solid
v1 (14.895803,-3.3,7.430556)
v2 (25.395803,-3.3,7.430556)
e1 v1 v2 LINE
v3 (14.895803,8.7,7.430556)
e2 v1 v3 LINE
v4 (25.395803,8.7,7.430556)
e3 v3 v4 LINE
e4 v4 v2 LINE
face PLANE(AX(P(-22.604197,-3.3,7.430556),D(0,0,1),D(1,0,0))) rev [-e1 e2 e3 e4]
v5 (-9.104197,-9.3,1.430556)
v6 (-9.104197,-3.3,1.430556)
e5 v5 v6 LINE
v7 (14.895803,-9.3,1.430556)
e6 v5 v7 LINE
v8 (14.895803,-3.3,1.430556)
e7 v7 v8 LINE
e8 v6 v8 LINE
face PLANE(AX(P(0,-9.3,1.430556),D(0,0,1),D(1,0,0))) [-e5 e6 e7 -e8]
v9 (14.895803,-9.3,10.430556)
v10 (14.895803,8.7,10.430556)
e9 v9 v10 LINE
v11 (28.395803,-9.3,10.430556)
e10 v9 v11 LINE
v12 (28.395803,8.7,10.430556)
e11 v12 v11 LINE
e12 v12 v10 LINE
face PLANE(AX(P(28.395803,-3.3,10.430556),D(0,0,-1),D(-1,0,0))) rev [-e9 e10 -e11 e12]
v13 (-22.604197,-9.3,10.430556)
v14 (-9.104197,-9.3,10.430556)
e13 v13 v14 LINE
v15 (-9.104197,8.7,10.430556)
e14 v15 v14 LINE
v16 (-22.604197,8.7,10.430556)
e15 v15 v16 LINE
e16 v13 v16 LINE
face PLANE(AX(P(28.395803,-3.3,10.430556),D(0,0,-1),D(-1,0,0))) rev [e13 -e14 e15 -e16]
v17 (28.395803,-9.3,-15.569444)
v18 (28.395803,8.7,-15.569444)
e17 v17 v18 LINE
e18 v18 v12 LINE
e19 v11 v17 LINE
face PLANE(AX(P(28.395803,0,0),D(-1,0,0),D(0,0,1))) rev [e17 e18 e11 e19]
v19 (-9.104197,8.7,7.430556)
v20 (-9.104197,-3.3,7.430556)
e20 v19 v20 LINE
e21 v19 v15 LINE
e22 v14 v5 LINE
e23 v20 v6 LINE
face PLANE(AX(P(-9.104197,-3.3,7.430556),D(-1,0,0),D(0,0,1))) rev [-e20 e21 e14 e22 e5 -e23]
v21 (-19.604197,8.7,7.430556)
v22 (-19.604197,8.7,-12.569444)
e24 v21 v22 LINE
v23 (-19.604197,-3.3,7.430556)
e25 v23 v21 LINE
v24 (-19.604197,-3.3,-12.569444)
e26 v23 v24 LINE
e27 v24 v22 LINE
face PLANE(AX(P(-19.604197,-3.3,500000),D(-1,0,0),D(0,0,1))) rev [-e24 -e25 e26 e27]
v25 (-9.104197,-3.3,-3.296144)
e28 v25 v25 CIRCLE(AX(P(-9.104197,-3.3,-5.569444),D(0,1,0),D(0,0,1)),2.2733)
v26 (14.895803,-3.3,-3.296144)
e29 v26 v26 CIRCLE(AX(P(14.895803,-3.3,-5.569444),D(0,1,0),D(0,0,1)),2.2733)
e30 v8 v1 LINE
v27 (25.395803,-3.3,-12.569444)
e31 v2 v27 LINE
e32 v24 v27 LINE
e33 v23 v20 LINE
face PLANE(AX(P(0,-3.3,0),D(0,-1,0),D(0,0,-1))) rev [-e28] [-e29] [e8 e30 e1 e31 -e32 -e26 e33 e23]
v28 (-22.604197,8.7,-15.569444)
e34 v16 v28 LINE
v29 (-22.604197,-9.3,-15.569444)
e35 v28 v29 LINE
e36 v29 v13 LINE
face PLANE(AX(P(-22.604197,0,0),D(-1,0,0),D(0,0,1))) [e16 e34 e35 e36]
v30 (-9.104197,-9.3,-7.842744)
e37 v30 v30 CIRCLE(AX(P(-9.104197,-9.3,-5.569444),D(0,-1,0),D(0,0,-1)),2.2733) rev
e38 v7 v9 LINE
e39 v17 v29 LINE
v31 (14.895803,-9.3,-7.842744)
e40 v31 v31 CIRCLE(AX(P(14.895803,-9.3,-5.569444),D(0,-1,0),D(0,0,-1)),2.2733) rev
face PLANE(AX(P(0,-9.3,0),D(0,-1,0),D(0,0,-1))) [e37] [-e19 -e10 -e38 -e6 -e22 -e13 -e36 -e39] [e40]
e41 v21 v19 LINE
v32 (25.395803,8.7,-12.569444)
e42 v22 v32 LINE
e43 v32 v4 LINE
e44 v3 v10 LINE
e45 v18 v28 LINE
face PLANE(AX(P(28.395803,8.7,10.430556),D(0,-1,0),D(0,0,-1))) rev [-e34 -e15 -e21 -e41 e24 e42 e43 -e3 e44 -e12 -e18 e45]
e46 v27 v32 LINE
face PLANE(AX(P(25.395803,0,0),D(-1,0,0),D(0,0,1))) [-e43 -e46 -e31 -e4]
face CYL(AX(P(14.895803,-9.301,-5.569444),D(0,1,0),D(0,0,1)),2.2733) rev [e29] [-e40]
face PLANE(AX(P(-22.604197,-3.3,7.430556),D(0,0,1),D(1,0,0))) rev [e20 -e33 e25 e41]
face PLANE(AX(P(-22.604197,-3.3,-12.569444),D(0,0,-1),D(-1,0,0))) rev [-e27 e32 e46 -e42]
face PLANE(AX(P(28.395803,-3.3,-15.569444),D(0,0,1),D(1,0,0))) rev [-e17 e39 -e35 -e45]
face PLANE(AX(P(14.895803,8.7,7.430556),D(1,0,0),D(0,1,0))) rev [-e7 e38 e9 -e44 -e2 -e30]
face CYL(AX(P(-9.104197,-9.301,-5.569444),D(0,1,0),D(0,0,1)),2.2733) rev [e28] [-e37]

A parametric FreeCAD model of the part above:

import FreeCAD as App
import Part
import Sketcher
from FreeCAD import Vector

doc = App.newDocument("Part")
params = doc.addObject("Spreadsheet::Sheet", "Params")
for row, (alias, value) in enumerate([
    ("sketch1_width", "12 mm"),
    ("sketch1_height", "26 mm"),
    ("pad1_length", "3 mm"),
    ("sketch2_width", "12 mm"),
    ("sketch2_height", "3 mm"),
    ("pad2_length", "48 mm"),
    ("sketch3_width", "3 mm"),
    ("sketch3_height", "12 mm"),
    ("sketch4_width", "24 mm"),
    ("sketch4_height", "12 mm"),
    ("pocket1_length", "3 mm"),
    ("sketch5_width", "51 mm"),
    ("sketch5_width2", "24 mm"),
    ("sketch5_height", "26 mm"),
    ("sketch5_height2", "9 mm"),
    ("pad4_length", "6 mm"),
], start=1):
    params.set(f"A{row}", alias)
    params.set(f"B{row}", "=" + value)
    params.setAlias(f"B{row}", alias)

body = doc.addObject("PartDesign::Body", "Body")

# Sketch on YZ plane
sketch1 = doc.addObject("Sketcher::SketchObject", "Sketch")
body.addObject(sketch1)
sketch1.AttachmentSupport = (doc.YZ_Plane, [""])
sketch1.MapMode = "FlatFace"
sketch1.AttachmentOffset = App.Placement(Vector(0, 0, 25.395803), App.Rotation())
sketch1.addGeometry(Part.LineSegment(Vector(-3.3, -15.569444, 0), Vector(8.7, -15.569444, 0)), False)
sketch1.addGeometry(Part.LineSegment(Vector(8.7, -15.569444, 0), Vector(8.7, 10.430556, 0)), False)
sketch1.addGeometry(Part.LineSegment(Vector(8.7, 10.430556, 0), Vector(-3.3, 10.430556, 0)), False)
sketch1.addGeometry(Part.LineSegment(Vector(-3.3, 10.430556, 0), Vector(-3.3, -15.569444, 0)), False)
sketch1.addConstraint(Sketcher.Constraint("Coincident", 0, 2, 1, 1))
sketch1.addConstraint(Sketcher.Constraint("Coincident", 1, 2, 2, 1))
sketch1.addConstraint(Sketcher.Constraint("Coincident", 2, 2, 3, 1))
sketch1.addConstraint(Sketcher.Constraint("Coincident", 3, 2, 0, 1))
sketch1.addConstraint(Sketcher.Constraint("Horizontal", 0))
sketch1.addConstraint(Sketcher.Constraint("Vertical", 1))
sketch1.addConstraint(Sketcher.Constraint("Horizontal", 2))
sketch1.addConstraint(Sketcher.Constraint("Vertical", 3))
sketch1.addConstraint(Sketcher.Constraint("DistanceX", 0, 1, 0, 2, 12.0))
sketch1.addConstraint(Sketcher.Constraint("DistanceY", 1, 1, 1, 2, 26.0))
sketch1.addConstraint(Sketcher.Constraint("DistanceX", -1, 1, 0, 2, 8.7))
sketch1.addConstraint(Sketcher.Constraint("DistanceY", 0, 2, -1, 1, 15.569444))
sketch1.setExpression("Constraints[8]", "Params.sketch1_width")
sketch1.setExpression("Constraints[9]", "Params.sketch1_height")
pad1 = doc.addObject("PartDesign::Pad", "Pad")
body.addObject(pad1)
pad1.Profile = sketch1
pad1.setExpression("Length", "Params.pad1_length")

# Sketch on YZ plane
sketch2 = doc.addObject("Sketcher::SketchObject", "Sketch001")
body.addObject(sketch2)
sketch2.AttachmentSupport = (doc.YZ_Plane, [""])
sketch2.MapMode = "FlatFace"
sketch2.AttachmentOffset = App.Placement(Vector(0, 0, 25.395803), App.Rotation())
sketch2.addGeometry(Part.LineSegment(Vector(8.7, -15.569444, 0), Vector(-3.3, -15.569444, 0)), False)
sketch2.addGeometry(Part.LineSegment(Vector(-3.3, -15.569444, 0), Vector(-3.3, -12.569444, 0)), False)
sketch2.addGeometry(Part.LineSegment(Vector(-3.3, -12.569444, 0), Vector(8.7, -12.569444, 0)), False)
sketch2.addGeometry(Part.LineSegment(Vector(8.7, -12.569444, 0), Vector(8.7, -15.569444, 0)), False)
sketch2.addGeometry(Part.LineSegment(Vector(8.7, 7.430556, 0), Vector(-3.3, 7.430556, 0)), False)
sketch2.addGeometry(Part.LineSegment(Vector(-3.3, 7.430556, 0), Vector(-3.3, 10.430556, 0)), False)
sketch2.addGeometry(Part.LineSegment(Vector(-3.3, 10.430556, 0), Vector(8.7, 10.430556, 0)), False)
sketch2.addGeometry(Part.LineSegment(Vector(8.7, 10.430556, 0), Vector(8.7, 7.430556, 0)), False)
sketch2.addConstraint(Sketcher.Constraint("Coincident", 0, 2, 1, 1))
sketch2.addConstraint(Sketcher.Constraint("Coincident", 1, 2, 2, 1))
sketch2.addConstraint(Sketcher.Constraint("Coincident", 2, 2, 3, 1))
sketch2.addConstraint(Sketcher.Constraint("Coincident", 3, 2, 0, 1))
sketch2.addConstraint(Sketcher.Constraint("Coincident", 4, 2, 5, 1))
sketch2.addConstraint(Sketcher.Constraint("Coincident", 5, 2, 6, 1))
sketch2.addConstraint(Sketcher.Constraint("Coincident", 6, 2, 7, 1))
sketch2.addConstraint(Sketcher.Constraint("Coincident", 7, 2, 4, 1))
sketch2.addConstraint(Sketcher.Constraint("Horizontal", 0))
sketch2.addConstraint(Sketcher.Constraint("Vertical", 1))
sketch2.addConstraint(Sketcher.Constraint("Horizontal", 2))
sketch2.addConstraint(Sketcher.Constraint("Vertical", 3))
sketch2.addConstraint(Sketcher.Constraint("Horizontal", 4))
sketch2.addConstraint(Sketcher.Constraint("Vertical", 5))
sketch2.addConstraint(Sketcher.Constraint("Horizontal", 6))
sketch2.addConstraint(Sketcher.Constraint("Vertical", 7))
sketch2.addConstraint(Sketcher.Constraint("Vertical", 1, 2, 4, 2))
sketch2.addConstraint(Sketcher.Constraint("Vertical", 3, 2, 6, 2))
sketch2.addConstraint(Sketcher.Constraint("Equal", 3, 5))
sketch2.addConstraint(Sketcher.Constraint("DistanceX", 0, 2, 0, 1, 12.0))
sketch2.addConstraint(Sketcher.Constraint("DistanceY", 1, 1, 1, 2, 3.0))
sketch2.addConstraint(Sketcher.Constraint("DistanceY", 1, 2, 4, 2, 20.0))
sketch2.addConstraint(Sketcher.Constraint("DistanceX", 0, 2, -1, 1, 3.3))
sketch2.addConstraint(Sketcher.Constraint("DistanceY", 0, 2, -1, 1, 15.569444))
sketch2.setExpression("Constraints[19]", "Params.sketch2_width")
sketch2.setExpression("Constraints[20]", "Params.sketch2_height")
pad2 = doc.addObject("PartDesign::Pad", "Pad001")
body.addObject(pad2)
pad2.Profile = sketch2
pad2.setExpression("Length", "Params.pad2_length")
pad2.Reversed = True

# Sketch on XY plane
sketch3 = doc.addObject("Sketcher::SketchObject", "Sketch002")
body.addObject(sketch3)
sketch3.AttachmentSupport = (doc.XY_Plane, [""])
sketch3.MapMode = "FlatFace"
sketch3.AttachmentOffset = App.Placement(Vector(0, 0, -12.569444), App.Rotation())
sketch3.addGeometry(Part.LineSegment(Vector(-22.604197, 8.7, 0), Vector(-22.604197, -3.3, 0)), False)
sketch3.addGeometry(Part.LineSegment(Vector(-22.604197, -3.3, 0), Vector(-19.604197, -3.3, 0)), False)
sketch3.addGeometry(Part.LineSegment(Vector(-19.604197, -3.3, 0), Vector(-19.604197, 8.7, 0)), False)
sketch3.addGeometry(Part.LineSegment(Vector(-19.604197, 8.7, 0), Vector(-22.604197, 8.7, 0)), False)
sketch3.addConstraint(Sketcher.Constraint("Coincident", 0, 2, 1, 1))
sketch3.addConstraint(Sketcher.Constraint("Coincident", 1, 2, 2, 1))
sketch3.addConstraint(Sketcher.Constraint("Coincident", 2, 2, 3, 1))
sketch3.addConstraint(Sketcher.Constraint("Coincident", 3, 2, 0, 1))
sketch3.addConstraint(Sketcher.Constraint("Vertical", 0))
sketch3.addConstraint(Sketcher.Constraint("Horizontal", 1))
sketch3.addConstraint(Sketcher.Constraint("Vertical", 2))
sketch3.addConstraint(Sketcher.Constraint("Horizontal", 3))
sketch3.addConstraint(Sketcher.Constraint("DistanceX", 1, 1, 1, 2, 3.0))
sketch3.addConstraint(Sketcher.Constraint("DistanceY", 0, 2, 0, 1, 12.0))
sketch3.addConstraint(Sketcher.Constraint("DistanceY", 0, 2, -1, 1, 3.3))
sketch3.addConstraint(Sketcher.Constraint("DistanceX", 0, 2, -1, 1, 22.604197))
sketch3.setExpression("Constraints[8]", "Params.sketch3_width")
sketch3.setExpression("Constraints[9]", "Params.sketch3_height")
pad3 = doc.addObject("PartDesign::Pad", "Pad002")
body.addObject(pad3)
pad3.Profile = sketch3
pad3.Type = "UpToFirst"

# Sketch on XY plane
sketch4 = doc.addObject("Sketcher::SketchObject", "Sketch003")
body.addObject(sketch4)
sketch4.AttachmentSupport = (doc.XY_Plane, [""])
sketch4.MapMode = "FlatFace"
sketch4.AttachmentOffset = App.Placement(Vector(0, 0, 10.430556), App.Rotation())
sketch4.addGeometry(Part.LineSegment(Vector(14.895803, 8.7, 0), Vector(-9.104197, 8.7, 0)), False)
sketch4.addGeometry(Part.LineSegment(Vector(-9.104197, 8.7, 0), Vector(-9.104197, -3.3, 0)), False)
sketch4.addGeometry(Part.LineSegment(Vector(-9.104197, -3.3, 0), Vector(14.895803, -3.3, 0)), False)
sketch4.addGeometry(Part.LineSegment(Vector(14.895803, -3.3, 0), Vector(14.895803, 8.7, 0)), False)
sketch4.addConstraint(Sketcher.Constraint("Coincident", 0, 2, 1, 1))
sketch4.addConstraint(Sketcher.Constraint("Coincident", 1, 2, 2, 1))
sketch4.addConstraint(Sketcher.Constraint("Coincident", 2, 2, 3, 1))
sketch4.addConstraint(Sketcher.Constraint("Coincident", 3, 2, 0, 1))
sketch4.addConstraint(Sketcher.Constraint("Horizontal", 0))
sketch4.addConstraint(Sketcher.Constraint("Vertical", 1))
sketch4.addConstraint(Sketcher.Constraint("Horizontal", 2))
sketch4.addConstraint(Sketcher.Constraint("Vertical", 3))
sketch4.addConstraint(Sketcher.Constraint("DistanceX", 0, 2, 0, 1, 24.0))
sketch4.addConstraint(Sketcher.Constraint("DistanceY", 1, 2, 1, 1, 12.0))
sketch4.addConstraint(Sketcher.Constraint("DistanceY", -1, 1, 0, 2, 8.7))
sketch4.addConstraint(Sketcher.Constraint("DistanceX", 0, 2, -1, 1, 9.104197))
sketch4.setExpression("Constraints[8]", "Params.sketch4_width")
sketch4.setExpression("Constraints[9]", "Params.sketch4_height")
pocket1 = doc.addObject("PartDesign::Pocket", "Pocket")
body.addObject(pocket1)
pocket1.Profile = sketch4
pocket1.setExpression("Length", "Params.pocket1_length")

# Sketch on XZ plane
sketch5 = doc.addObject("Sketcher::SketchObject", "Sketch004")
body.addObject(sketch5)
sketch5.AttachmentSupport = (doc.XZ_Plane, [""])
sketch5.MapMode = "FlatFace"
sketch5.AttachmentOffset = App.Placement(Vector(0, 0, 3.3), App.Rotation())
sketch5.addGeometry(Part.LineSegment(Vector(-22.604197, 10.430556, 0), Vector(-22.604197, -15.569444, 0)), False)
sketch5.addGeometry(Part.LineSegment(Vector(-22.604197, -15.569444, 0), Vector(28.395803, -15.569444, 0)), False)
sketch5.addGeometry(Part.LineSegment(Vector(28.395803, -15.569444, 0), Vector(28.395803, 10.430556, 0)), False)
sketch5.addGeometry(Part.LineSegment(Vector(28.395803, 10.430556, 0), Vector(14.895803, 10.430556, 0)), False)
sketch5.addGeometry(Part.LineSegment(Vector(14.895803, 10.430556, 0), Vector(14.895803, 1.430556, 0)), False)
sketch5.addGeometry(Part.LineSegment(Vector(14.895803, 1.430556, 0), Vector(-9.104197, 1.430556, 0)), False)
sketch5.addGeometry(Part.LineSegment(Vector(-9.104197, 1.430556, 0), Vector(-9.104197, 10.430556, 0)), False)
sketch5.addGeometry(Part.LineSegment(Vector(-9.104197, 10.430556, 0), Vector(-22.604197, 10.430556, 0)), False)
sketch5.addConstraint(Sketcher.Constraint("Coincident", 0, 2, 1, 1))
sketch5.addConstraint(Sketcher.Constraint("Coincident", 1, 2, 2, 1))
sketch5.addConstraint(Sketcher.Constraint("Coincident", 2, 2, 3, 1))
sketch5.addConstraint(Sketcher.Constraint("Coincident", 3, 2, 4, 1))
sketch5.addConstraint(Sketcher.Constraint("Coincident", 4, 2, 5, 1))
sketch5.addConstraint(Sketcher.Constraint("Coincident", 5, 2, 6, 1))
sketch5.addConstraint(Sketcher.Constraint("Coincident", 6, 2, 7, 1))
sketch5.addConstraint(Sketcher.Constraint("Coincident", 7, 2, 0, 1))
sketch5.addConstraint(Sketcher.Constraint("Vertical", 0))
sketch5.addConstraint(Sketcher.Constraint("Horizontal", 1))
sketch5.addConstraint(Sketcher.Constraint("Vertical", 2))
sketch5.addConstraint(Sketcher.Constraint("Horizontal", 3))
sketch5.addConstraint(Sketcher.Constraint("Vertical", 4))
sketch5.addConstraint(Sketcher.Constraint("Horizontal", 5))
sketch5.addConstraint(Sketcher.Constraint("Vertical", 6))
sketch5.addConstraint(Sketcher.Constraint("Horizontal", 7))
sketch5.addConstraint(Sketcher.Constraint("Horizontal", 3, 2, 6, 2))
sketch5.addConstraint(Sketcher.Constraint("Equal", 3, 7))
sketch5.addConstraint(Sketcher.Constraint("DistanceX", 1, 1, 1, 2, 51.0))
sketch5.addConstraint(Sketcher.Constraint("DistanceX", 5, 2, 5, 1, 24.0))
sketch5.addConstraint(Sketcher.Constraint("DistanceY", 0, 2, 0, 1, 26.0))
sketch5.addConstraint(Sketcher.Constraint("DistanceY", 4, 2, 4, 1, 9.0))
sketch5.addConstraint(Sketcher.Constraint("DistanceX", 0, 2, -1, 1, 22.604197))
sketch5.addConstraint(Sketcher.Constraint("DistanceY", 0, 2, -1, 1, 15.569444))
sketch5.setExpression("Constraints[18]", "Params.sketch5_width")
sketch5.setExpression("Constraints[19]", "Params.sketch5_width2")
sketch5.setExpression("Constraints[20]", "Params.sketch5_height")
sketch5.setExpression("Constraints[21]", "Params.sketch5_height2")
pad4 = doc.addObject("PartDesign::Pad", "Pad003")
body.addObject(pad4)
pad4.Profile = sketch5
pad4.setExpression("Length", "Params.pad4_length")

# Sketch on XZ plane
sketch6 = doc.addObject("Sketcher::SketchObject", "Sketch005")
body.addObject(sketch6)
sketch6.AttachmentSupport = (doc.XZ_Plane, [""])
sketch6.MapMode = "FlatFace"
sketch6.AttachmentOffset = App.Placement(Vector(0, 0, 3.3), App.Rotation())
sketch6.addGeometry(Part.Circle(Vector(-9.104197, -5.569444, 0), Vector(0, 0, 1), 2.2733), False)
sketch6.addConstraint(Sketcher.Constraint("Diameter", 0, 4.5466))
sketch6.addConstraint(Sketcher.Constraint("DistanceX", 0, 3, -1, 1, 9.104197))
sketch6.addConstraint(Sketcher.Constraint("DistanceY", 0, 3, -1, 1, 5.569444))
pocket2 = doc.addObject("PartDesign::Pocket", "Pocket001")
body.addObject(pocket2)
pocket2.Profile = sketch6
pocket2.Type = "UpToFirst"
pocket2.Reversed = True

# Sketch on XZ plane
sketch7 = doc.addObject("Sketcher::SketchObject", "Sketch006")
body.addObject(sketch7)
sketch7.AttachmentSupport = (doc.XZ_Plane, [""])
sketch7.MapMode = "FlatFace"
sketch7.AttachmentOffset = App.Placement(Vector(0, 0, 3.3), App.Rotation())
sketch7.addGeometry(Part.Circle(Vector(14.895803, -5.569444, 0), Vector(0, 0, 1), 2.2733), False)
sketch7.addConstraint(Sketcher.Constraint("Diameter", 0, 4.5466))
sketch7.addConstraint(Sketcher.Constraint("DistanceX", -1, 1, 0, 3, 14.895803))
sketch7.addConstraint(Sketcher.Constraint("DistanceY", 0, 3, -1, 1, 5.569444))
pocket3 = doc.addObject("PartDesign::Pocket", "Pocket002")
body.addObject(pocket3)
pocket3.Profile = sketch7
pocket3.Type = "UpToFirst"
pocket3.Reversed = True

doc.recompute()
